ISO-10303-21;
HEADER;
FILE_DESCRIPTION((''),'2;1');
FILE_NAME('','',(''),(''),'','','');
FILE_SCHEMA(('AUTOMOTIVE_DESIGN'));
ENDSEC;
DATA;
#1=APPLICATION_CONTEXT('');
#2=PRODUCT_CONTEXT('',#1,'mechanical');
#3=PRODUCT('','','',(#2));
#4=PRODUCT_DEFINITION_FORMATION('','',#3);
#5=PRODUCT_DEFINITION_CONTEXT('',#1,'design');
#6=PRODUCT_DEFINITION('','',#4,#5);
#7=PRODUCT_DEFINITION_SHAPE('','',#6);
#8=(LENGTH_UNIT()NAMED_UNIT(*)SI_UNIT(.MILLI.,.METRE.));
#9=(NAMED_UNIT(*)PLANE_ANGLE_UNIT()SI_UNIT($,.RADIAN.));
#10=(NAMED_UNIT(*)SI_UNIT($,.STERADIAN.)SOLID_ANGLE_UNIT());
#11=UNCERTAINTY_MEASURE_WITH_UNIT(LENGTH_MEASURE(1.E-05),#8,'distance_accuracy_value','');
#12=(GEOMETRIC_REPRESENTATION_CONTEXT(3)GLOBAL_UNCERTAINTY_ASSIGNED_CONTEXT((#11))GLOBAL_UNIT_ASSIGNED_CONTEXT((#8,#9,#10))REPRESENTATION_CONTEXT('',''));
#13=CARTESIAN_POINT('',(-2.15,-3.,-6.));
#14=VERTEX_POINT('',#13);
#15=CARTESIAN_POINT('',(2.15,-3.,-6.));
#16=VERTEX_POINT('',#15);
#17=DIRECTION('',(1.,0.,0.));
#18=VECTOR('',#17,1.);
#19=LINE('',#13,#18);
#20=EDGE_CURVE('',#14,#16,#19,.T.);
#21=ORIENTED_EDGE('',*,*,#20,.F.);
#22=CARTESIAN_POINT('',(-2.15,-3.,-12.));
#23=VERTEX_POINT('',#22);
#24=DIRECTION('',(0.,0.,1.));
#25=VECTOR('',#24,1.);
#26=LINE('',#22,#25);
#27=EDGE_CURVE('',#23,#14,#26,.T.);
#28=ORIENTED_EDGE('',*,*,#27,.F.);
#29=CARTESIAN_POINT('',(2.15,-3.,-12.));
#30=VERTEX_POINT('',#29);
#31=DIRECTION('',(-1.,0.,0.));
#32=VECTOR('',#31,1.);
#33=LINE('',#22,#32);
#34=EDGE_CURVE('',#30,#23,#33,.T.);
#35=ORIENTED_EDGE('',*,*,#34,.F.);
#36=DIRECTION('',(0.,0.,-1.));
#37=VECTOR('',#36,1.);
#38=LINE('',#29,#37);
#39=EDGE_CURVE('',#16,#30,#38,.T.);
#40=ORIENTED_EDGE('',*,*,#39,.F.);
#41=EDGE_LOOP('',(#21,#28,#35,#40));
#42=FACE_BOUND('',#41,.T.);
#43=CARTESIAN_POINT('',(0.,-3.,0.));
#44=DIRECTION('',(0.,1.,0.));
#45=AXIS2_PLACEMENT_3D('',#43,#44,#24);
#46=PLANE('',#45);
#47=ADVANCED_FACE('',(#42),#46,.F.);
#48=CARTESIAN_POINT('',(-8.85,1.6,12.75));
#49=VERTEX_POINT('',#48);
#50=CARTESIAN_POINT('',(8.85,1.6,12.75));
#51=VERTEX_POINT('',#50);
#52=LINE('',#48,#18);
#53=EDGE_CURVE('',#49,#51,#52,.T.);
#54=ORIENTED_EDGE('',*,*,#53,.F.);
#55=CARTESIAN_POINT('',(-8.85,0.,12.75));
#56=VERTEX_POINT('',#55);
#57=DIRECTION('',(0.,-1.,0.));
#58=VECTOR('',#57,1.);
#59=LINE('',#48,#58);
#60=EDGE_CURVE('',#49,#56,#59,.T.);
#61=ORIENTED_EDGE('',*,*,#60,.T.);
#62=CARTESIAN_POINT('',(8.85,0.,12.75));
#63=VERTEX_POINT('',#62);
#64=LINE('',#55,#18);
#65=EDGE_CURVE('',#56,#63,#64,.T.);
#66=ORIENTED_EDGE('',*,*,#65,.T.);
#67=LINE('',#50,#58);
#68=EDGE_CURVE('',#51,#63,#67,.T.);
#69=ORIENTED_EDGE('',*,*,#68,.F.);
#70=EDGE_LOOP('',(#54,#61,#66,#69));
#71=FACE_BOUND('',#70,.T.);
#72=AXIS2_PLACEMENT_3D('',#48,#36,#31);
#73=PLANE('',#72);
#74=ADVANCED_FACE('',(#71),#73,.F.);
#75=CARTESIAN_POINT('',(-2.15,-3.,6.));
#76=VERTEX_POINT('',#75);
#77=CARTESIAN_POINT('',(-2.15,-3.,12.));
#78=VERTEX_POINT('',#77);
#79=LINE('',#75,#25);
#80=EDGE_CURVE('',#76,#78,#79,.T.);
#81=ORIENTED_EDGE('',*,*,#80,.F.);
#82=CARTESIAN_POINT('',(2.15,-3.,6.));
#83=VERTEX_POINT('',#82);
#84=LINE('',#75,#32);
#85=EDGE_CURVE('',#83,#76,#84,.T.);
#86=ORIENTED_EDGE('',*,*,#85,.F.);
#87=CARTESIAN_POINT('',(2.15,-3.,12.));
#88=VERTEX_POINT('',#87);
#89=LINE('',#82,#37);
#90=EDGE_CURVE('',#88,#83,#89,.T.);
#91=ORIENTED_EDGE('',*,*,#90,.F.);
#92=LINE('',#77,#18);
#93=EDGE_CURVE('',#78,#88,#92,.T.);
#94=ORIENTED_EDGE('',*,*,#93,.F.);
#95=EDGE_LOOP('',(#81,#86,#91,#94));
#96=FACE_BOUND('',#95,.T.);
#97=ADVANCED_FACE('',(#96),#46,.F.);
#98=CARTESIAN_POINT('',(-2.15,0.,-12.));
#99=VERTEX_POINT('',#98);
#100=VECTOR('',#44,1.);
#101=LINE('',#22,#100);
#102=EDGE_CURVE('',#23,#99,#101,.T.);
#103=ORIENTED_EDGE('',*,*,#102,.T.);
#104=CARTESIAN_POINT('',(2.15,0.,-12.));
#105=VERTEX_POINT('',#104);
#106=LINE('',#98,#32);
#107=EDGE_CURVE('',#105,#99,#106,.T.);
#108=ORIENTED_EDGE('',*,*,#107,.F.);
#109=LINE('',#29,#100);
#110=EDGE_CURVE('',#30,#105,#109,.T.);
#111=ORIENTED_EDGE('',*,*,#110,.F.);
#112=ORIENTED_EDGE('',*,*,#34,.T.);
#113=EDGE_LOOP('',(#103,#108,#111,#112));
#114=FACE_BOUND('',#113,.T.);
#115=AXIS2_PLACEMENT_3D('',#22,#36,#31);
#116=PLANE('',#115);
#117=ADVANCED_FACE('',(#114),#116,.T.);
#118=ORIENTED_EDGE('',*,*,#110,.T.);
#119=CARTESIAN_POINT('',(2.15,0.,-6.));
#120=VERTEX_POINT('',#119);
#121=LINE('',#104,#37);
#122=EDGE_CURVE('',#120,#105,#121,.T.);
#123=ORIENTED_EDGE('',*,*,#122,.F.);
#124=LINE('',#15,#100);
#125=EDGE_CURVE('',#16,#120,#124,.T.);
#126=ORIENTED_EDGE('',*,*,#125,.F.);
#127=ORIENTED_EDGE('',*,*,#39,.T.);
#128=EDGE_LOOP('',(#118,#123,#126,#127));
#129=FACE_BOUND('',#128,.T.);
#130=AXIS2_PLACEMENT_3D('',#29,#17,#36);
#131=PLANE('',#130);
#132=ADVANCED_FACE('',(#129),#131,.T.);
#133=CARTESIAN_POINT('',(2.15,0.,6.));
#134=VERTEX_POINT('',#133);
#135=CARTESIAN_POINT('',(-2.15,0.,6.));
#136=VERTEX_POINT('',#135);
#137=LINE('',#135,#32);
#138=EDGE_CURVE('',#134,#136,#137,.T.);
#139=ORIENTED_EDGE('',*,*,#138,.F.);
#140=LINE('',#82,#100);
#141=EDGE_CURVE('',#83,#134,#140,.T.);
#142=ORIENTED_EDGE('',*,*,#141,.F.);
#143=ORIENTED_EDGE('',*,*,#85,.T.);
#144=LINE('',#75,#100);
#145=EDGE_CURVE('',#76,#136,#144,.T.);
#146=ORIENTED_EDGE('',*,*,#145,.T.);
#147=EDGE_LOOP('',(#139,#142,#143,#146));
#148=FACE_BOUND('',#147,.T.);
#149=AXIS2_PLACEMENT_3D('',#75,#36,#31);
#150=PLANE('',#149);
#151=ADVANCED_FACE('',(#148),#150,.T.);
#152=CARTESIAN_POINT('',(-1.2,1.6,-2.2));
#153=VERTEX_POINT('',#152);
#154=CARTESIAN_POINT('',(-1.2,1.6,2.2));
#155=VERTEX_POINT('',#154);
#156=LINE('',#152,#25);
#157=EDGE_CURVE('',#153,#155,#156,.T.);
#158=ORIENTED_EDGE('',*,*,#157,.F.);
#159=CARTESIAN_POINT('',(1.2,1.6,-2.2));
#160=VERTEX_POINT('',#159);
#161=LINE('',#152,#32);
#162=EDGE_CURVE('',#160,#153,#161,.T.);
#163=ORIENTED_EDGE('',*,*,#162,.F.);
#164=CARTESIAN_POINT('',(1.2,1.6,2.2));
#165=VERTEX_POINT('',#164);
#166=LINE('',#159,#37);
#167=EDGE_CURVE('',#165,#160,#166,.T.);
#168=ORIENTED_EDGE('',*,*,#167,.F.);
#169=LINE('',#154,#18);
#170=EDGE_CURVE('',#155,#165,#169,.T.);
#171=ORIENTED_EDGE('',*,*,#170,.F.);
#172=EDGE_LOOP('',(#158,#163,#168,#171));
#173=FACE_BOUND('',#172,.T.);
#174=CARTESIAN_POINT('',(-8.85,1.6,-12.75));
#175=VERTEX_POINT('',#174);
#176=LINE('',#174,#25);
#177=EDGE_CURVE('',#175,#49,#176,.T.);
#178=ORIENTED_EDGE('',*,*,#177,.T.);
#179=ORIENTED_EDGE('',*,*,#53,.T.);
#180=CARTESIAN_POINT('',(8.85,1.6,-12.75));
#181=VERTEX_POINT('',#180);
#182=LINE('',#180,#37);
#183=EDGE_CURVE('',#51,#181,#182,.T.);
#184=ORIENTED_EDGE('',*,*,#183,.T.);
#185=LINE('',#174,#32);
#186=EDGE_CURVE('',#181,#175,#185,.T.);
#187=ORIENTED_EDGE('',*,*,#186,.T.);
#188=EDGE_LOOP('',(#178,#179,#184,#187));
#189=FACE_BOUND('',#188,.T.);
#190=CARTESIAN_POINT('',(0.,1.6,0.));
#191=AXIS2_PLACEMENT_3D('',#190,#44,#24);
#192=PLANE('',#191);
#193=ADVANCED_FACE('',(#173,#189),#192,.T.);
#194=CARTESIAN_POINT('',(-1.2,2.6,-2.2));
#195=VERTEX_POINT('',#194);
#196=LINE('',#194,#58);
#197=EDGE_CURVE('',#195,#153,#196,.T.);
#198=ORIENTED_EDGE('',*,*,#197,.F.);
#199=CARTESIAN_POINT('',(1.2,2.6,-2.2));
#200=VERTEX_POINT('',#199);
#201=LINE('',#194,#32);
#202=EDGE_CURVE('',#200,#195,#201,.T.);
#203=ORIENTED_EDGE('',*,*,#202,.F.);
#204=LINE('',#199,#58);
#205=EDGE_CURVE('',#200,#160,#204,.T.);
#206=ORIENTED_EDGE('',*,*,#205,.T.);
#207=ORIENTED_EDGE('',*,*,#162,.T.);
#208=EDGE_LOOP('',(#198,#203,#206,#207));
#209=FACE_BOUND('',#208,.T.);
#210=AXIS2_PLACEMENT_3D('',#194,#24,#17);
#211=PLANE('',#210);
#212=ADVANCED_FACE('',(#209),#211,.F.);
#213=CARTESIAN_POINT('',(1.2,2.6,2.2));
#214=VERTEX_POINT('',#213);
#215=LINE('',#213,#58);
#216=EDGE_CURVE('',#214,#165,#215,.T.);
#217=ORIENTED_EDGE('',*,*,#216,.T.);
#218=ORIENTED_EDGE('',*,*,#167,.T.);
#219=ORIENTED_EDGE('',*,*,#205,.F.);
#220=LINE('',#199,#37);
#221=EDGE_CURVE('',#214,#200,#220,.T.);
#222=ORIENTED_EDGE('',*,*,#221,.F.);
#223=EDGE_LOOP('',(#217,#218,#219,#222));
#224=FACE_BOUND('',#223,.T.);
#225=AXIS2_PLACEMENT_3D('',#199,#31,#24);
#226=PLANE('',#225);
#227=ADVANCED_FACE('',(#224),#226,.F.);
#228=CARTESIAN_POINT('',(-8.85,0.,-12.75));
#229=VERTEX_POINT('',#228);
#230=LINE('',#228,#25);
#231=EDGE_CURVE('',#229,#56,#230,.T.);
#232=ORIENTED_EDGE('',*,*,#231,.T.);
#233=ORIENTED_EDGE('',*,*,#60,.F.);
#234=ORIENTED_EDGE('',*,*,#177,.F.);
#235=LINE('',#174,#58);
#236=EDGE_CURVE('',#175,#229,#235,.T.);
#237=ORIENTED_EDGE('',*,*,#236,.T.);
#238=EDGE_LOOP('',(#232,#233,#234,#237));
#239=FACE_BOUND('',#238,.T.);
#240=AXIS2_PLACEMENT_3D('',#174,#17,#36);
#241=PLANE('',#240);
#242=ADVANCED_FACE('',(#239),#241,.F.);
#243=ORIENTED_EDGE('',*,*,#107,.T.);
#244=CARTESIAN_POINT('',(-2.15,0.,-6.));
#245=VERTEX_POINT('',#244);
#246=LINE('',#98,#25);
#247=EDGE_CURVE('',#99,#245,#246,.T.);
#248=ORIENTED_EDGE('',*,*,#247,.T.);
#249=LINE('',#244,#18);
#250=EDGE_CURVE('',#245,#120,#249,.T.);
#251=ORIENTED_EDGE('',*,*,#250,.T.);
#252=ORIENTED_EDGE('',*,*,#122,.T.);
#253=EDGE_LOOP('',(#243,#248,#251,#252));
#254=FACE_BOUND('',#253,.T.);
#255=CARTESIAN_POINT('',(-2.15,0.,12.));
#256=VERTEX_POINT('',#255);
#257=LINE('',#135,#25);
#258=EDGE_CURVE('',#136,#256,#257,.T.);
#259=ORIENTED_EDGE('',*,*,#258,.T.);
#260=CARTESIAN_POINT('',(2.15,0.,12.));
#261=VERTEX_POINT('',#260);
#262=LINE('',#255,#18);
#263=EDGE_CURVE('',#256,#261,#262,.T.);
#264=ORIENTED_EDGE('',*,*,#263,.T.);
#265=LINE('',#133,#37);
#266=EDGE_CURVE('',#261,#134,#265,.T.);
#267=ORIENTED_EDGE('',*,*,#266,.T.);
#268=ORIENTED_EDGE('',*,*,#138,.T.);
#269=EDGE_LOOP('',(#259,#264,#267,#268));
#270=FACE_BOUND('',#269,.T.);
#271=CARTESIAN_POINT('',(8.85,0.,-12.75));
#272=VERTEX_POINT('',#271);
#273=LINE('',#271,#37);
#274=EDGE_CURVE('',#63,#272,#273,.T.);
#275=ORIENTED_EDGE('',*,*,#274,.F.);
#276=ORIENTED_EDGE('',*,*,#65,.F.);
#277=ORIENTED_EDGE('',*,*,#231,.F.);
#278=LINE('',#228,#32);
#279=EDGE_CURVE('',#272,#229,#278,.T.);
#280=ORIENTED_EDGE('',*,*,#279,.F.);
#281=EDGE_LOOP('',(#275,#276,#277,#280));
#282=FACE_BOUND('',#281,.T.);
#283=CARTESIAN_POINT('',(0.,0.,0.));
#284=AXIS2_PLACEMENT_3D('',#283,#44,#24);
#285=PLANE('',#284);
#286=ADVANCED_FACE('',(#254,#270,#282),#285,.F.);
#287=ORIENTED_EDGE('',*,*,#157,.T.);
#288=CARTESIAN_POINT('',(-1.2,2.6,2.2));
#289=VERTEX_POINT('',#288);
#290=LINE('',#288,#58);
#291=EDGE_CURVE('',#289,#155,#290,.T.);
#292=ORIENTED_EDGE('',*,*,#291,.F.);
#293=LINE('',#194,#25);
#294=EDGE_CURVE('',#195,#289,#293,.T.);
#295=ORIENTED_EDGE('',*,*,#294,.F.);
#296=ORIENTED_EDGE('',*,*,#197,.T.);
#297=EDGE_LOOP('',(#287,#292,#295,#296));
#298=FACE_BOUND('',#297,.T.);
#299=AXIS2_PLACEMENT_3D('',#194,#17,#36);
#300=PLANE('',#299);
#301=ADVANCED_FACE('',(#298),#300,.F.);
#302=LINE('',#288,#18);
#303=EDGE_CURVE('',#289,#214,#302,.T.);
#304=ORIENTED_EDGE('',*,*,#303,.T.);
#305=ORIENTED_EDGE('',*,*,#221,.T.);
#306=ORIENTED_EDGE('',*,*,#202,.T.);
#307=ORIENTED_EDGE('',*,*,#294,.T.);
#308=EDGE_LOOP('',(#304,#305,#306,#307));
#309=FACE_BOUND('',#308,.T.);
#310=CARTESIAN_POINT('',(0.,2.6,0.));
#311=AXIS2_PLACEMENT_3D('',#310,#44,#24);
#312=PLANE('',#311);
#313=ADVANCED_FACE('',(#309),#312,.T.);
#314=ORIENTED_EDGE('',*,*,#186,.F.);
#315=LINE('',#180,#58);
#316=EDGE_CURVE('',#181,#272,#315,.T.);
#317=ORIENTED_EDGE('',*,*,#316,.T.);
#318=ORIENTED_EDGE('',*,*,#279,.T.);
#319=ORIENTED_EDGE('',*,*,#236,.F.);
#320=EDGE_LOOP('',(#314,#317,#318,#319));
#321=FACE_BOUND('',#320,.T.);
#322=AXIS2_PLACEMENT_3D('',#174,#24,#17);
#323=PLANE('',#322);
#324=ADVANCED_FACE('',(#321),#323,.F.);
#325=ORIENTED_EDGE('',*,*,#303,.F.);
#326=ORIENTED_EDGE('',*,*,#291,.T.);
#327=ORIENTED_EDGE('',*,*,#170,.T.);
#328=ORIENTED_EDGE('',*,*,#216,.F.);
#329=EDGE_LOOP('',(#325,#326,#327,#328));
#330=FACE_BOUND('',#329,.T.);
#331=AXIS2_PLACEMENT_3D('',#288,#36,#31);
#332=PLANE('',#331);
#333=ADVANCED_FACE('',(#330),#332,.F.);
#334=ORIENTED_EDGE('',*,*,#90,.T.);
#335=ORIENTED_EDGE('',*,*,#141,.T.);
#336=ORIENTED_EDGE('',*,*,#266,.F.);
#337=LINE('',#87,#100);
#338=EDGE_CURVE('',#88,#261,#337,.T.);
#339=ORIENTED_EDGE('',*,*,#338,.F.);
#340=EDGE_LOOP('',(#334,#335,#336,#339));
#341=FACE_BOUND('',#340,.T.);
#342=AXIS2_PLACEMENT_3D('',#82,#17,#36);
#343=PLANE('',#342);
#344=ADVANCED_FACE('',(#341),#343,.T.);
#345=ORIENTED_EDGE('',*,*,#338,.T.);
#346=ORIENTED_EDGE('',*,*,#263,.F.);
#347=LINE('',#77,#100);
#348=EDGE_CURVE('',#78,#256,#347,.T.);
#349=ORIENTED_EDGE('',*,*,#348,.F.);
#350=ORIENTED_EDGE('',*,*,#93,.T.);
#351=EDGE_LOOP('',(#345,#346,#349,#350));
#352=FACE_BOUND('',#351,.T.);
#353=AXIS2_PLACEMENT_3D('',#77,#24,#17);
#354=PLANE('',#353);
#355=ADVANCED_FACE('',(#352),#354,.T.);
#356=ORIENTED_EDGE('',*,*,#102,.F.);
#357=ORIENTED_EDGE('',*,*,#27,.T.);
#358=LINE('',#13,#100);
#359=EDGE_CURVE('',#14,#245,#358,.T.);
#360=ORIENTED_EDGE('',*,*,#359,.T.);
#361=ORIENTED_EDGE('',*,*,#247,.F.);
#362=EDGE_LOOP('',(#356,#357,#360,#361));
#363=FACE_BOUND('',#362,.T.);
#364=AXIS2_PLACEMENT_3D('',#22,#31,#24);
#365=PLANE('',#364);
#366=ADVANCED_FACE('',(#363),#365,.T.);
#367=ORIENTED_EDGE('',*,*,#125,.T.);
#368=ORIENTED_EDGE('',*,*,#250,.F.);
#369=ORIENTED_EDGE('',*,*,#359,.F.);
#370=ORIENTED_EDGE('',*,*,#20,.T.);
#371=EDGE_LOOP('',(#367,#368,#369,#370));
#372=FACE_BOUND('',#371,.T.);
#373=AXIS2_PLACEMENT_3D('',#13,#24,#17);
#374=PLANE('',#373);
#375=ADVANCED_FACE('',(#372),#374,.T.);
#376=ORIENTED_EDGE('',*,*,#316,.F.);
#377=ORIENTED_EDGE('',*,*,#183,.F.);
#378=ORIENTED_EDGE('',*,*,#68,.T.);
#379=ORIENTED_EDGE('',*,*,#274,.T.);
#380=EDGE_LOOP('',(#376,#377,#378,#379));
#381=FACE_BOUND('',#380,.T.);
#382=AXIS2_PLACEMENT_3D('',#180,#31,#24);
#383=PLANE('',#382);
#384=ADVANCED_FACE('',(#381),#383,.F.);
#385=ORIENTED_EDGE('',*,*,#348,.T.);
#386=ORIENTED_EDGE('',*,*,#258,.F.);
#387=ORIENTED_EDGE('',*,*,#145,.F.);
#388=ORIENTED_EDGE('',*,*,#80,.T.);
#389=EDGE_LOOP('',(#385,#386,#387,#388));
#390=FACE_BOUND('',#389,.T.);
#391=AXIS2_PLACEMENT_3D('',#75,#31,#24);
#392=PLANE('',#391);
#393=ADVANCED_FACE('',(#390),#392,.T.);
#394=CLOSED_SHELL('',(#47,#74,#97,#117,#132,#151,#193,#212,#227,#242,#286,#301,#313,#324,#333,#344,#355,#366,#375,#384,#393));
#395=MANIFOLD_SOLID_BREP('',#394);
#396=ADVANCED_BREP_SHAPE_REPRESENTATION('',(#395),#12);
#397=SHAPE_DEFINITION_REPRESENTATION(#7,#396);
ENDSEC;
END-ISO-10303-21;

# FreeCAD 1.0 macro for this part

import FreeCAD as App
import Part
import Sketcher
from FreeCAD import Vector

doc = App.newDocument("Part")
body = doc.addObject("PartDesign::Body", "Body")

# Sketch on XZ plane
sketch1 = body.newObject("Sketcher::SketchObject", "Sketch")
sketch1.AttachmentSupport = (doc.getObject("XZ_Plane"), [""])
sketch1.MapMode = "FlatFace"
sketch1.addGeometry([
    Part.LineSegment(Vector(-9, -13, 0), Vector(-9, 13, 0)),
    Part.LineSegment(Vector(-9, 13, 0), Vector(9, 13, 0)),
    Part.LineSegment(Vector(9, 13, 0), Vector(9, -13, 0)),
    Part.LineSegment(Vector(9, -13, 0), Vector(-9, -13, 0)),
], False)
sketch1.addConstraint([
    Sketcher.Constraint("Coincident", 0, 2, 1, 1),
    Sketcher.Constraint("Coincident", 1, 2, 2, 1),
    Sketcher.Constraint("Coincident", 2, 2, 3, 1),
    Sketcher.Constraint("Coincident", 3, 2, 0, 1),
    Sketcher.Constraint("Vertical", 0),
    Sketcher.Constraint("Horizontal", 1),
    Sketcher.Constraint("Vertical", 2),
    Sketcher.Constraint("Horizontal", 3),
    Sketcher.Constraint("Symmetric", 0, 2, 2, 2, -1, 1),
    Sketcher.Constraint("DistanceX", 1, 1, 1, 2, 17.7),
    Sketcher.Constraint("DistanceY", 0, 1, 0, 2, 25.5),
])
pad1 = body.newObject("PartDesign::Pad", "Pad")
pad1.Profile = sketch1
pad1.Length = 1.6
pad1.Reversed = True

# Sketch on XZ plane
sketch2 = body.newObject("Sketcher::SketchObject", "Sketch001")
sketch2.AttachmentSupport = (doc.getObject("XZ_Plane"), [""])
sketch2.MapMode = "FlatFace"
sketch2.AttachmentOffset = App.Placement(Vector(0, 0, -1.6), App.Rotation())
sketch2.addGeometry([
    Part.LineSegment(Vector(-1.2, -2.2, 0), Vector(-1.2, 2.2, 0)),
    Part.LineSegment(Vector(-1.2, 2.2, 0), Vector(1.2, 2.2, 0)),
    Part.LineSegment(Vector(1.2, 2.2, 0), Vector(1.2, -2.2, 0)),
    Part.LineSegment(Vector(1.2, -2.2, 0), Vector(-1.2, -2.2, 0)),
], False)
sketch2.addConstraint([
    Sketcher.Constraint("Coincident", 0, 2, 1, 1),
    Sketcher.Constraint("Coincident", 1, 2, 2, 1),
    Sketcher.Constraint("Coincident", 2, 2, 3, 1),
    Sketcher.Constraint("Coincident", 3, 2, 0, 1),
    Sketcher.Constraint("Vertical", 0),
    Sketcher.Constraint("Horizontal", 1),
    Sketcher.Constraint("Vertical", 2),
    Sketcher.Constraint("Horizontal", 3),
    Sketcher.Constraint("Symmetric", 0, 2, 2, 2, -1, 1),
    Sketcher.Constraint("DistanceX", 1, 1, 1, 2, 2.4),
    Sketcher.Constraint("DistanceY", 0, 1, 0, 2, 4.4),
])
pad2 = body.newObject("PartDesign::Pad", "Pad001")
pad2.Profile = sketch2
pad2.Length = 1
pad2.Reversed = True

# Sketch on XZ plane
sketch3 = body.newObject("Sketcher::SketchObject", "Sketch002")
sketch3.AttachmentSupport = (doc.getObject("XZ_Plane"), [""])
sketch3.MapMode = "FlatFace"
sketch3.addGeometry([
    Part.LineSegment(Vector(-2.1, 6, 0), Vector(-2.1, 12, 0)),  # 0
    Part.LineSegment(Vector(-2.1, 12, 0), Vector(2.1, 12, 0)),  # 1
    Part.LineSegment(Vector(2.1, 12, 0), Vector(2.1, 6, 0)),  # 2
    Part.LineSegment(Vector(2.1, 6, 0), Vector(-2.1, 6, 0)),  # 3
    Part.LineSegment(Vector(-2.1, -12, 0), Vector(-2.1, -6, 0)),  # 4
    Part.LineSegment(Vector(-2.1, -6, 0), Vector(2.1, -6, 0)),  # 5
    Part.LineSegment(Vector(2.1, -6, 0), Vector(2.1, -12, 0)),  # 6
    Part.LineSegment(Vector(2.1, -12, 0), Vector(-2.1, -12, 0)),  # 7
], False)
sketch3.addConstraint([
    Sketcher.Constraint("Coincident", 0, 2, 1, 1),
    Sketcher.Constraint("Coincident", 1, 2, 2, 1),
    Sketcher.Constraint("Coincident", 2, 2, 3, 1),
    Sketcher.Constraint("Coincident", 3, 2, 0, 1),
    Sketcher.Constraint("Coincident", 4, 2, 5, 1),
    Sketcher.Constraint("Coincident", 5, 2, 6, 1),
    Sketcher.Constraint("Coincident", 6, 2, 7, 1),
    Sketcher.Constraint("Coincident", 7, 2, 4, 1),
    Sketcher.Constraint("Vertical", 0),
    Sketcher.Constraint("Horizontal", 1),
    Sketcher.Constraint("Vertical", 2),
    Sketcher.Constraint("Horizontal", 3),
    Sketcher.Constraint("Vertical", 4),
    Sketcher.Constraint("Horizontal", 5),
    Sketcher.Constraint("Vertical", 6),
    Sketcher.Constraint("Horizontal", 7),
    Sketcher.Constraint("Symmetric", 2, 2, 4, 2, -1, 1),
    Sketcher.Constraint("Symmetric", 0, 2, 6, 2, -1, 1),
    Sketcher.Constraint("Vertical", 3, 2, 4, 2),
    Sketcher.Constraint("DistanceY", 0, 1, 0, 2, 6.0),
    Sketcher.Constraint("DistanceX", 1, 1, 1, 2, 4.3),
    Sketcher.Constraint("DistanceY", -1, 1, 0, 2, 12.0),
])
pad3 = body.newObject("PartDesign::Pad", "Pad002")
pad3.Profile = sketch3
pad3.Length = 3

doc.recompute()
